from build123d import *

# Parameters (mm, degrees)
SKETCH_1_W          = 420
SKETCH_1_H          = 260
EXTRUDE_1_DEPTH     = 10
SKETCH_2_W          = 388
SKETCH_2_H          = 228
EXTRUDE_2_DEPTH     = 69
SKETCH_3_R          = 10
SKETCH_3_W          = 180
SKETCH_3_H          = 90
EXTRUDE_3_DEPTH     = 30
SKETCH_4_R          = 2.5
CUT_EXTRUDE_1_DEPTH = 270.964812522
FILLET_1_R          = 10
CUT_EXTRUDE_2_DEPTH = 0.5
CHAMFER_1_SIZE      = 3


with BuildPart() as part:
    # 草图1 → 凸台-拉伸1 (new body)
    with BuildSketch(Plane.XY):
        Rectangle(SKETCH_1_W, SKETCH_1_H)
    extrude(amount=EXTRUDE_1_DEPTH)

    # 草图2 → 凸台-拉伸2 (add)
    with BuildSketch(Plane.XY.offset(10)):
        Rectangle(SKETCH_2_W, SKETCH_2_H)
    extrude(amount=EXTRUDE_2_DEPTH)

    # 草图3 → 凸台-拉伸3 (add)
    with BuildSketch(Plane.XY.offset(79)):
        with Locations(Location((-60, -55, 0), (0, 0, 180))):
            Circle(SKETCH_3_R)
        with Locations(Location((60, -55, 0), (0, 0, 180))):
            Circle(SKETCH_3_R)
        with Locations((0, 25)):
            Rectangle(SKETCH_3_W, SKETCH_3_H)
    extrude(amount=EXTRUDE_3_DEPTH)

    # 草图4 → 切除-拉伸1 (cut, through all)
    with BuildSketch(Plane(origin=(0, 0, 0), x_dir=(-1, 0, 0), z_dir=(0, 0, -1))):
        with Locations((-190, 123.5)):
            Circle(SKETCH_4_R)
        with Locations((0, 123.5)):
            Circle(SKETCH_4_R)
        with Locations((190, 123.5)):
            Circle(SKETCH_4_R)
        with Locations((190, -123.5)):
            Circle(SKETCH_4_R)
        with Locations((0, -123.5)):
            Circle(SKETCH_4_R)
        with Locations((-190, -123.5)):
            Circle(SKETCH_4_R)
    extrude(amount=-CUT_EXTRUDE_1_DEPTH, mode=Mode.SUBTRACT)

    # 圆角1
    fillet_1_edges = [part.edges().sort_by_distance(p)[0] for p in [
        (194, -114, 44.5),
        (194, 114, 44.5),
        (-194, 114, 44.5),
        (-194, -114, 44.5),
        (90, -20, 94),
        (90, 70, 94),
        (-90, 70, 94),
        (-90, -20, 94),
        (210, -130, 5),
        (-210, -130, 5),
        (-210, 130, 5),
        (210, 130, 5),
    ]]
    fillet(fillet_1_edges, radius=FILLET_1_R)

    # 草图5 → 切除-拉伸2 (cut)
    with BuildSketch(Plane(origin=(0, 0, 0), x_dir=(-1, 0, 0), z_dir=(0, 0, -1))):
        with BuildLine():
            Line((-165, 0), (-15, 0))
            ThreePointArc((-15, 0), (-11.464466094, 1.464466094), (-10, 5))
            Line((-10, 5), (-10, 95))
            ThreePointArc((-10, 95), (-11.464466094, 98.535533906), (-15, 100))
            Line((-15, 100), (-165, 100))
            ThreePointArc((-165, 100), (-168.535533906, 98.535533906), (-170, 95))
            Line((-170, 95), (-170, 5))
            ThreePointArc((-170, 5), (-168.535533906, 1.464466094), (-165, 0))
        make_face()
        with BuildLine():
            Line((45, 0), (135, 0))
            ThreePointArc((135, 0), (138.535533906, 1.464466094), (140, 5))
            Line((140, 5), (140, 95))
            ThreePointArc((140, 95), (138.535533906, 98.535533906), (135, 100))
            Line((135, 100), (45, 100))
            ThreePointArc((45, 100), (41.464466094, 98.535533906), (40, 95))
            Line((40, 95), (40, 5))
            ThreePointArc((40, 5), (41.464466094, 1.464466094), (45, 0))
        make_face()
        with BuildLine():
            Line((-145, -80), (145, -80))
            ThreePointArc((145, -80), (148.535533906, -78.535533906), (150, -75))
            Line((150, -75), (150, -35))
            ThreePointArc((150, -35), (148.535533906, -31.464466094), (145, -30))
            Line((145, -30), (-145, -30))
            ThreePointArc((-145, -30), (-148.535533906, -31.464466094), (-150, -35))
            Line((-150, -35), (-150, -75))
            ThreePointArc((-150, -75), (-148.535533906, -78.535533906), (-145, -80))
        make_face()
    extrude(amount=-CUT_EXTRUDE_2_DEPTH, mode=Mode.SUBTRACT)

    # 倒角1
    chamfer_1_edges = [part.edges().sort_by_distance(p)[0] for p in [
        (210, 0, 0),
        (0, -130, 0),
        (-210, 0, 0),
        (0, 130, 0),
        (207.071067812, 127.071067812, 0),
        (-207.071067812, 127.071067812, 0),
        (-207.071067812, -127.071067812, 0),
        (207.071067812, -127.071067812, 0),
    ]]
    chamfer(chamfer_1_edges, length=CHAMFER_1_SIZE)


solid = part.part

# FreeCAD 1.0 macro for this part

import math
import FreeCAD as App
import Part
import Sketcher

V = App.Vector
Q = App.Units.Quantity


def edges_at(feature, points):
    """Names of the edges that pass closest to the given points."""
    edges = feature.Shape.Edges
    near = lambda p: min(range(len(edges)), key=lambda i: edges[i].distToShape(Part.Vertex(*p))[0])
    return sorted({f"Edge{near(p) + 1}" for p in points})


def add_polygon(sketch, points):
    """Adds a closed chain of lines whose ends are joined by coincident constraints."""
    first, n = sketch.GeometryCount, len(points)
    for a, b in zip(points, points[1:] + points[:1]):
        sketch.addGeometry(Part.LineSegment(App.Vector(*a, 0), App.Vector(*b, 0)), False)
    for i in range(n):
        sketch.addConstraint(Sketcher.Constraint("Coincident", first + i, 2, first + (i + 1) % n, 1))

doc = App.newDocument("Part")
body = doc.addObject("PartDesign::Body", "Body")

# Sketch on XY plane
sketch1 = body.newObject("Sketcher::SketchObject", "Sketch")
sketch1.AttachmentSupport = (doc.getObject("XY_Plane"), [""])
sketch1.MapMode = "FlatFace"
add_polygon(sketch1, [(-210, 130), (-210, -130), (210, -130), (210, 130)])  # lines 0-3
sketch1.addConstraint([
    Sketcher.Constraint("Vertical", 0),
    Sketcher.Constraint("Horizontal", 1),
    Sketcher.Constraint("Vertical", 2),
    Sketcher.Constraint("Horizontal", 3),
    Sketcher.Constraint("Symmetric", 0, 2, 2, 2, -1, 1),
    Sketcher.Constraint("DistanceX", 1, 1, 1, 2, Q("420 mm")),
    Sketcher.Constraint("DistanceY", 0, 2, 0, 1, Q("260 mm")),
])
pad1 = body.newObject("PartDesign::Pad", "Pad")
pad1.Profile = sketch1
pad1.Length = 10

# Sketch on XY plane
sketch2 = body.newObject("Sketcher::SketchObject", "Sketch001")
sketch2.AttachmentSupport = (doc.getObject("XY_Plane"), [""])
sketch2.MapMode = "FlatFace"
sketch2.AttachmentOffset = App.Placement(V(0, 0, 10), App.Rotation())
add_polygon(sketch2, [(-194, 114), (-194, -114), (194, -114), (194, 114)])  # lines 0-3
sketch2.addConstraint([
    Sketcher.Constraint("Vertical", 0),
    Sketcher.Constraint("Horizontal", 1),
    Sketcher.Constraint("Vertical", 2),
    Sketcher.Constraint("Horizontal", 3),
    Sketcher.Constraint("Symmetric", 0, 2, 2, 2, -1, 1),
    Sketcher.Constraint("DistanceX", 1, 1, 1, 2, Q("388 mm")),
    Sketcher.Constraint("DistanceY", 0, 2, 0, 1, Q("228 mm")),
])
pad2 = body.newObject("PartDesign::Pad", "Pad001")
pad2.Profile = sketch2
pad2.Length = 69

# Sketch on XY plane
sketch3 = body.newObject("Sketcher::SketchObject", "Sketch002")
sketch3.AttachmentSupport = (doc.getObject("XY_Plane"), [""])
sketch3.MapMode = "FlatFace"
sketch3.AttachmentOffset = App.Placement(V(0, 0, 79), App.Rotation())
sketch3.addGeometry(Part.Circle(V(-60, -55, 0), V(0, 0, 1), 10), False)  # 0
sketch3.addGeometry(Part.Circle(V(60, -55, 0), V(0, 0, 1), 10), False)  # 1
add_polygon(sketch3, [(-90, 70), (-90, -20), (90, -20), (90, 70)])  # lines 2-5
sketch3.addConstraint([
    Sketcher.Constraint("Vertical", 2),
    Sketcher.Constraint("Horizontal", 3),
    Sketcher.Constraint("Vertical", 4),
    Sketcher.Constraint("Horizontal", 5),
    Sketcher.Constraint("Equal", 0, 1),
    Sketcher.Constraint("Symmetric", 0, 3, 1, 3, -2),
    Sketcher.Constraint("Diameter", 0, Q("20 mm")),
    Sketcher.Constraint("DistanceX", 3, 1, 3, 2, Q("180 mm")),
    Sketcher.Constraint("DistanceY", 2, 2, 2, 1, Q("90 mm")),
    Sketcher.Constraint("DistanceX", 0, 3, -1, 1, Q("60 mm")),
    Sketcher.Constraint("DistanceY", 0, 3, -1, 1, Q("55 mm")),
    Sketcher.Constraint("DistanceX", 2, 2, -1, 1, Q("90 mm")),
    Sketcher.Constraint("DistanceY", 2, 2, -1, 1, Q("20 mm")),
])
pad3 = body.newObject("PartDesign::Pad", "Pad002")
pad3.Profile = sketch3
pad3.Length = 30

# Sketch on XY plane
sketch4 = body.newObject("Sketcher::SketchObject", "Sketch003")
sketch4.AttachmentSupport = (doc.getObject("XY_Plane"), [""])
sketch4.MapMode = "FlatFace"
sketch4.addGeometry([
    Part.Circle(V(190, 123.5, 0), V(0, 0, 1), 2.5),  # 0
    Part.Circle(V(0, 123.5, 0), V(0, 0, 1), 2.5),  # 1
    Part.Circle(V(-190, 123.5, 0), V(0, 0, 1), 2.5),  # 2
    Part.Circle(V(-190, -123.5, 0), V(0, 0, 1), 2.5),  # 3
    Part.Circle(V(0, -123.5, 0), V(0, 0, 1), 2.5),  # 4
    Part.Circle(V(190, -123.5, 0), V(0, 0, 1), 2.5),  # 5
], False)
sketch4.addConstraint([
    Sketcher.Constraint("Equal", 0, 1),
    Sketcher.Constraint("Equal", 1, 2),
    Sketcher.Constraint("Equal", 2, 3),
    Sketcher.Constraint("Equal", 3, 4),
    Sketcher.Constraint("Equal", 4, 5),
    Sketcher.Constraint("Symmetric", 0, 3, 3, 3, -1, 1),
    Sketcher.Constraint("Symmetric", 1, 3, 4, 3, -1, 1),
    Sketcher.Constraint("Symmetric", 2, 3, 5, 3, -1, 1),
    Sketcher.Constraint("Symmetric", 0, 3, 2, 3, -2),
    Sketcher.Constraint("PointOnObject", 1, 3, -2),
    Sketcher.Constraint("Horizontal", 0, 3, 1, 3),
    Sketcher.Constraint("Diameter", 0, Q("5 mm")),
    Sketcher.Constraint("DistanceX", -1, 1, 0, 3, Q("190 mm")),
    Sketcher.Constraint("DistanceY", 3, 3, 2, 3, Q("247 mm")),
])
pocket1 = body.newObject("PartDesign::Pocket", "Pocket")
pocket1.Profile = sketch4
pocket1.Type = "ThroughAll"
pocket1.Reversed = True
doc.recompute()

fillet = body.newObject("PartDesign::Fillet", "Fillet")
fillet.Base = (pocket1, edges_at(pocket1, [
    (194, -114, 44.5),
    (194, 114, 44.5),
    (-194, 114, 44.5),
    (-194, -114, 44.5),
    (90, -20, 94),
    (90, 70, 94),
    (-90, 70, 94),
    (-90, -20, 94),
    (210, -130, 5),
    (-210, -130, 5),
    (-210, 130, 5),
    (210, 130, 5),
]))
fillet.Radius = 10

# Sketch on XY plane
sketch5 = body.newObject("Sketcher::SketchObject", "Sketch004")
sketch5.AttachmentSupport = (doc.getObject("XY_Plane"), [""])
sketch5.MapMode = "FlatFace"
sketch5.addGeometry([
    Part.LineSegment(V(165, 0, 0), V(15, 0, 0)),  # 0
    Part.ArcOfCircle(Part.Circle(V(15, 5, 0), V(0, 0, 1), 5), math.radians(180), math.radians(270)),  # 1
    Part.LineSegment(V(10, 5, 0), V(10, 95, 0)),  # 2
    Part.ArcOfCircle(Part.Circle(V(15, 95, 0), V(0, 0, 1), 5), math.radians(90), math.radians(180)),  # 3
    Part.LineSegment(V(15, 100, 0), V(165, 100, 0)),  # 4
    Part.ArcOfCircle(Part.Circle(V(165, 95, 0), V(0, 0, 1), 5), math.radians(0), math.radians(90)),  # 5
    Part.LineSegment(V(170, 95, 0), V(170, 5, 0)),  # 6
    Part.ArcOfCircle(Part.Circle(V(165, 5, 0), V(0, 0, 1), 5), math.radians(-90), math.radians(0)),  # 7
    Part.LineSegment(V(-45, 0, 0), V(-135, 0, 0)),  # 8
    Part.ArcOfCircle(Part.Circle(V(-135, 5, 0), V(0, 0, 1), 5), math.radians(180), math.radians(270)),  # 9
    Part.LineSegment(V(-140, 5, 0), V(-140, 95, 0)),  # 10
    Part.ArcOfCircle(Part.Circle(V(-135, 95, 0), V(0, 0, 1), 5), math.radians(90), math.radians(180)),  # 11
    Part.LineSegment(V(-135, 100, 0), V(-45, 100, 0)),  # 12
    Part.ArcOfCircle(Part.Circle(V(-45, 95, 0), V(0, 0, 1), 5), math.radians(0), math.radians(90)),  # 13
    Part.LineSegment(V(-40, 95, 0), V(-40, 5, 0)),  # 14
    Part.ArcOfCircle(Part.Circle(V(-45, 5, 0), V(0, 0, 1), 5), math.radians(-90), math.radians(0)),  # 15
    Part.LineSegment(V(145, -80, 0), V(-145, -80, 0)),  # 16
    Part.ArcOfCircle(Part.Circle(V(-145, -75, 0), V(0, 0, 1), 5), math.radians(180), math.radians(270)),  # 17
    Part.LineSegment(V(-150, -75, 0), V(-150, -35, 0)),  # 18
    Part.ArcOfCircle(Part.Circle(V(-145, -35, 0), V(0, 0, 1), 5), math.radians(90), math.radians(180)),  # 19
    Part.LineSegment(V(-145, -30, 0), V(145, -30, 0)),  # 20
    Part.ArcOfCircle(Part.Circle(V(145, -35, 0), V(0, 0, 1), 5), math.radians(0), math.radians(90)),  # 21
    Part.LineSegment(V(150, -35, 0), V(150, -75, 0)),  # 22
    Part.ArcOfCircle(Part.Circle(V(145, -75, 0), V(0, 0, 1), 5), math.radians(-90), math.radians(0)),  # 23
], False)
sketch5.addConstraint([
    Sketcher.Constraint("Tangent", 0, 2, 1, 2),
    Sketcher.Constraint("Tangent", 1, 1, 2, 1),
    Sketcher.Constraint("Tangent", 2, 2, 3, 2),
    Sketcher.Constraint("Tangent", 3, 1, 4, 1),
    Sketcher.Constraint("Tangent", 4, 2, 5, 2),
    Sketcher.Constraint("Tangent", 5, 1, 6, 1),
    Sketcher.Constraint("Tangent", 6, 2, 7, 2),
    Sketcher.Constraint("Tangent", 7, 1, 0, 1),
    Sketcher.Constraint("Tangent", 8, 2, 9, 2),
    Sketcher.Constraint("Tangent", 9, 1, 10, 1),
    Sketcher.Constraint("Tangent", 10, 2, 11, 2),
    Sketcher.Constraint("Tangent", 11, 1, 12, 1),
    Sketcher.Constraint("Tangent", 12, 2, 13, 2),
    Sketcher.Constraint("Tangent", 13, 1, 14, 1),
    Sketcher.Constraint("Tangent", 14, 2, 15, 2),
    Sketcher.Constraint("Tangent", 15, 1, 8, 1),
    Sketcher.Constraint("Tangent", 16, 2, 17, 2),
    Sketcher.Constraint("Tangent", 17, 1, 18, 1),
    Sketcher.Constraint("Tangent", 18, 2, 19, 2),
    Sketcher.Constraint("Tangent", 19, 1, 20, 1),
    Sketcher.Constraint("Tangent", 20, 2, 21, 2),
    Sketcher.Constraint("Tangent", 21, 1, 22, 1),
    Sketcher.Constraint("Tangent", 22, 2, 23, 2),
    Sketcher.Constraint("Tangent", 23, 1, 16, 1),
    Sketcher.Constraint("Horizontal", 0),
    Sketcher.Constraint("Vertical", 2),
    Sketcher.Constraint("Horizontal", 4),
    Sketcher.Constraint("Vertical", 6),
    Sketcher.Constraint("Horizontal", 8),
    Sketcher.Constraint("Vertical", 10),
    Sketcher.Constraint("Horizontal", 12),
    Sketcher.Constraint("Vertical", 14),
    Sketcher.Constraint("Horizontal", 16),
    Sketcher.Constraint("Vertical", 18),
    Sketcher.Constraint("Horizontal", 20),
    Sketcher.Constraint("Vertical", 22),
    Sketcher.Constraint("Equal", 1, 3),
    Sketcher.Constraint("Equal", 3, 5),
    Sketcher.Constraint("Equal", 5, 7),
    Sketcher.Constraint("Equal", 7, 9),
    Sketcher.Constraint("Equal", 9, 11),
    Sketcher.Constraint("Equal", 11, 13),
    Sketcher.Constraint("Equal", 13, 15),
    Sketcher.Constraint("Equal", 15, 17),
    Sketcher.Constraint("Equal", 17, 19),
    Sketcher.Constraint("Equal", 19, 21),
    Sketcher.Constraint("Equal", 21, 23),
    Sketcher.Constraint("PointOnObject", 0, 2, -1),
    Sketcher.Constraint("PointOnObject", 8, 2, -1),
    Sketcher.Constraint("Horizontal", 5, 3, 11, 3),
    Sketcher.Constraint("Equal", 12, 2),
    Sketcher.Constraint("Radius", 1, Q("5 mm")),
    Sketcher.Constraint("DistanceX", 0, 2, 0, 1, Q("150 mm")),
    Sketcher.Constraint("DistanceX", 8, 2, 8, 1, Q("90 mm")),
    Sketcher.Constraint("DistanceX", 16, 2, 16, 1, Q("290 mm")),
    Sketcher.Constraint("DistanceY", 18, 1, 18, 2, Q("40 mm")),
    Sketcher.Constraint("DistanceX", -1, 1, 1, 3, Q("15 mm")),
    Sketcher.Constraint("DistanceX", 9, 3, -1, 1, Q("135 mm")),
    Sketcher.Constraint("DistanceX", 17, 3, -1, 1, Q("145 mm")),
    Sketcher.Constraint("DistanceY", 17, 3, -1, 1, Q("75 mm")),
])
pocket2 = body.newObject("PartDesign::Pocket", "Pocket001")
pocket2.Profile = sketch5
pocket2.Length = 0.5
pocket2.Reversed = True
doc.recompute()

chamfer = body.newObject("PartDesign::Chamfer", "Chamfer")
chamfer.Base = (pocket2, edges_at(pocket2, [
    (210, 0, 0),
    (0, -130, 0),
    (-210, 0, 0),
    (0, 130, 0),
    (207.071, 127.071, 0),
    (-207.071, 127.071, 0),
    (-207.071, -127.071, 0),
    (207.071, -127.071, 0),
]))
chamfer.Size = 3

doc.recompute()
